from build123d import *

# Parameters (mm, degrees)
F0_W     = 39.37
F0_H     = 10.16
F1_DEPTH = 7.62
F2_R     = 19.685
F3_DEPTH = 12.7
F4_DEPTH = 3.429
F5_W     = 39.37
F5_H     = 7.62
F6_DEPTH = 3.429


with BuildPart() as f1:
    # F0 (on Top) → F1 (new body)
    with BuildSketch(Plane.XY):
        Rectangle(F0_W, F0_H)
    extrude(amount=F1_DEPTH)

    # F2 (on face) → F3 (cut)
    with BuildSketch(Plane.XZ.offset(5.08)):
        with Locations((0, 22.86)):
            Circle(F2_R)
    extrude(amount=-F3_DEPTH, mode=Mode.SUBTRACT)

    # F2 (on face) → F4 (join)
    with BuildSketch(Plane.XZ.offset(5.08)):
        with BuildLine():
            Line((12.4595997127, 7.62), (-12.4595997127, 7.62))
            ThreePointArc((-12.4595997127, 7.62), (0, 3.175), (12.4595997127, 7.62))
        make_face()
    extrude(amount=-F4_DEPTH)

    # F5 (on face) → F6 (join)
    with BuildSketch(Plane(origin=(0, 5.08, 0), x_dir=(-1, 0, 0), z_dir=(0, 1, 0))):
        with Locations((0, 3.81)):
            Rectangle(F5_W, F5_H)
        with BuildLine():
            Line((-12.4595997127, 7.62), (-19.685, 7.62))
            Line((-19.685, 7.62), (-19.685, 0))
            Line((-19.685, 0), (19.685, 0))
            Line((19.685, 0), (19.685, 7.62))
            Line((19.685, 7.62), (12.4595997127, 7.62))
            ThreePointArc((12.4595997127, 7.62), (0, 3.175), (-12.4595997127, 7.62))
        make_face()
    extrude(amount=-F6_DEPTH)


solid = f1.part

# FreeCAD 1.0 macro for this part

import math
import FreeCAD as App
import Part
import Sketcher
from FreeCAD import Vector
Q = App.Units.Quantity

doc = App.newDocument("Part")
body = doc.addObject("PartDesign::Body", "Body")

# Sketch on XY plane
sketch1 = body.newObject("Sketcher::SketchObject", "Sketch")
sketch1.AttachmentSupport = (doc.getObject("XY_Plane"), [""])
sketch1.MapMode = "FlatFace"
sketch1.addGeometry([
    Part.LineSegment(Vector(-20, 5, 0), Vector(-20, -5, 0)),
    Part.LineSegment(Vector(-20, -5, 0), Vector(20, -5, 0)),
    Part.LineSegment(Vector(20, -5, 0), Vector(20, 5, 0)),
    Part.LineSegment(Vector(20, 5, 0), Vector(-20, 5, 0)),
], False)
sketch1.addConstraint([
    Sketcher.Constraint("Coincident", 0, 2, 1, 1),
    Sketcher.Constraint("Coincident", 1, 2, 2, 1),
    Sketcher.Constraint("Coincident", 2, 2, 3, 1),
    Sketcher.Constraint("Coincident", 3, 2, 0, 1),
    Sketcher.Constraint("Vertical", 0),
    Sketcher.Constraint("Horizontal", 1),
    Sketcher.Constraint("Vertical", 2),
    Sketcher.Constraint("Horizontal", 3),
    Sketcher.Constraint("Symmetric", 0, 2, 2, 2, -1, 1),
    Sketcher.Constraint("DistanceY", 0, 2, 0, 1, Q("0.4 in")),
    Sketcher.Constraint("DistanceX", 1, 1, 1, 2, Q("1.55 in")),
])
pad1 = body.newObject("PartDesign::Pad", "Pad")
pad1.Profile = sketch1
pad1.Length = Q("0.3 in")

# Sketch on XZ plane
sketch2 = body.newObject("Sketcher::SketchObject", "Sketch001")
sketch2.AttachmentSupport = (doc.getObject("XZ_Plane"), [""])
sketch2.MapMode = "FlatFace"
sketch2.AttachmentOffset = App.Placement(Vector(0, 0, 0.2 * 25.4), App.Rotation())
sketch2.addGeometry(Part.Circle(Vector(0, 23, 0), Vector(0, 0, 1), 20), False)
sketch2.addConstraint([
    Sketcher.Constraint("PointOnObject", 0, 3, -2),
    Sketcher.Constraint("Diameter", 0, Q("1.55 in")),
    Sketcher.Constraint("DistanceY", -1, 1, 0, 3, Q("0.9 in")),
])
pocket1 = body.newObject("PartDesign::Pocket", "Pocket")
pocket1.Profile = sketch2
pocket1.Length = Q("0.5 in")

# Sketch on XZ plane
sketch3 = body.newObject("Sketcher::SketchObject", "Sketch002")
sketch3.AttachmentSupport = (doc.getObject("XZ_Plane"), [""])
sketch3.MapMode = "FlatFace"
sketch3.AttachmentOffset = App.Placement(Vector(0, 0, 0.2 * 25.4), App.Rotation())
sketch3.addGeometry([
    Part.LineSegment(Vector(12, 8, 0), Vector(-12, 8, 0)),
    Part.ArcOfCircle(Part.Circle(Vector(0, 23, 0), Vector(0, 0, 1), 20), math.radians(-129), math.radians(-51)),
], False)
sketch3.addConstraint([
    Sketcher.Constraint("Coincident", 0, 1, 1, 2),
    Sketcher.Constraint("Coincident", 1, 1, 0, 2),
    Sketcher.Constraint("Horizontal", 0),
    Sketcher.Constraint("PointOnObject", 1, 3, -2),
    Sketcher.Constraint("Radius", 1, Q("0.775 in")),
    Sketcher.Constraint("DistanceY", -1, 1, 1, 3, Q("0.9 in")),
    Sketcher.Constraint("DistanceY", -1, 1, 0, 1, Q("0.3 in")),
])
pad2 = body.newObject("PartDesign::Pad", "Pad001")
pad2.Profile = sketch3
pad2.Length = Q("0.135 in")
pad2.Reversed = True

# Sketch on XZ plane
sketch4 = body.newObject("Sketcher::SketchObject", "Sketch003")
sketch4.AttachmentSupport = (doc.getObject("XZ_Plane"), [""])
sketch4.MapMode = "FlatFace"
sketch4.AttachmentOffset = App.Placement(Vector(0, 0, -0.2 * 25.4), App.Rotation())
sketch4.addGeometry([
    Part.LineSegment(Vector(20, 8, 0), Vector(20, 0, 0)),
    Part.LineSegment(Vector(20, 0, 0), Vector(-20, 0, 0)),
    Part.LineSegment(Vector(-20, 0, 0), Vector(-20, 8, 0)),
    Part.LineSegment(Vector(-20, 8, 0), Vector(20, 8, 0)),
], False)
sketch4.addConstraint([
    Sketcher.Constraint("Coincident", 0, 2, 1, 1),
    Sketcher.Constraint("Coincident", 1, 2, 2, 1),
    Sketcher.Constraint("Coincident", 2, 2, 3, 1),
    Sketcher.Constraint("Coincident", 3, 2, 0, 1),
    Sketcher.Constraint("Vertical", 0),
    Sketcher.Constraint("Horizontal", 1),
    Sketcher.Constraint("Vertical", 2),
    Sketcher.Constraint("Horizontal", 3),
    Sketcher.Constraint("Symmetric", 0, 2, 1, 2, -1, 1),
    Sketcher.Constraint("DistanceY", 0, 2, 0, 1, Q("0.3 in")),
    Sketcher.Constraint("DistanceX", 1, 2, 1, 1, Q("1.55 in")),
])
pad3 = body.newObject("PartDesign::Pad", "Pad002")
pad3.Profile = sketch4
pad3.Length = Q("0.135 in")

doc.recompute()
